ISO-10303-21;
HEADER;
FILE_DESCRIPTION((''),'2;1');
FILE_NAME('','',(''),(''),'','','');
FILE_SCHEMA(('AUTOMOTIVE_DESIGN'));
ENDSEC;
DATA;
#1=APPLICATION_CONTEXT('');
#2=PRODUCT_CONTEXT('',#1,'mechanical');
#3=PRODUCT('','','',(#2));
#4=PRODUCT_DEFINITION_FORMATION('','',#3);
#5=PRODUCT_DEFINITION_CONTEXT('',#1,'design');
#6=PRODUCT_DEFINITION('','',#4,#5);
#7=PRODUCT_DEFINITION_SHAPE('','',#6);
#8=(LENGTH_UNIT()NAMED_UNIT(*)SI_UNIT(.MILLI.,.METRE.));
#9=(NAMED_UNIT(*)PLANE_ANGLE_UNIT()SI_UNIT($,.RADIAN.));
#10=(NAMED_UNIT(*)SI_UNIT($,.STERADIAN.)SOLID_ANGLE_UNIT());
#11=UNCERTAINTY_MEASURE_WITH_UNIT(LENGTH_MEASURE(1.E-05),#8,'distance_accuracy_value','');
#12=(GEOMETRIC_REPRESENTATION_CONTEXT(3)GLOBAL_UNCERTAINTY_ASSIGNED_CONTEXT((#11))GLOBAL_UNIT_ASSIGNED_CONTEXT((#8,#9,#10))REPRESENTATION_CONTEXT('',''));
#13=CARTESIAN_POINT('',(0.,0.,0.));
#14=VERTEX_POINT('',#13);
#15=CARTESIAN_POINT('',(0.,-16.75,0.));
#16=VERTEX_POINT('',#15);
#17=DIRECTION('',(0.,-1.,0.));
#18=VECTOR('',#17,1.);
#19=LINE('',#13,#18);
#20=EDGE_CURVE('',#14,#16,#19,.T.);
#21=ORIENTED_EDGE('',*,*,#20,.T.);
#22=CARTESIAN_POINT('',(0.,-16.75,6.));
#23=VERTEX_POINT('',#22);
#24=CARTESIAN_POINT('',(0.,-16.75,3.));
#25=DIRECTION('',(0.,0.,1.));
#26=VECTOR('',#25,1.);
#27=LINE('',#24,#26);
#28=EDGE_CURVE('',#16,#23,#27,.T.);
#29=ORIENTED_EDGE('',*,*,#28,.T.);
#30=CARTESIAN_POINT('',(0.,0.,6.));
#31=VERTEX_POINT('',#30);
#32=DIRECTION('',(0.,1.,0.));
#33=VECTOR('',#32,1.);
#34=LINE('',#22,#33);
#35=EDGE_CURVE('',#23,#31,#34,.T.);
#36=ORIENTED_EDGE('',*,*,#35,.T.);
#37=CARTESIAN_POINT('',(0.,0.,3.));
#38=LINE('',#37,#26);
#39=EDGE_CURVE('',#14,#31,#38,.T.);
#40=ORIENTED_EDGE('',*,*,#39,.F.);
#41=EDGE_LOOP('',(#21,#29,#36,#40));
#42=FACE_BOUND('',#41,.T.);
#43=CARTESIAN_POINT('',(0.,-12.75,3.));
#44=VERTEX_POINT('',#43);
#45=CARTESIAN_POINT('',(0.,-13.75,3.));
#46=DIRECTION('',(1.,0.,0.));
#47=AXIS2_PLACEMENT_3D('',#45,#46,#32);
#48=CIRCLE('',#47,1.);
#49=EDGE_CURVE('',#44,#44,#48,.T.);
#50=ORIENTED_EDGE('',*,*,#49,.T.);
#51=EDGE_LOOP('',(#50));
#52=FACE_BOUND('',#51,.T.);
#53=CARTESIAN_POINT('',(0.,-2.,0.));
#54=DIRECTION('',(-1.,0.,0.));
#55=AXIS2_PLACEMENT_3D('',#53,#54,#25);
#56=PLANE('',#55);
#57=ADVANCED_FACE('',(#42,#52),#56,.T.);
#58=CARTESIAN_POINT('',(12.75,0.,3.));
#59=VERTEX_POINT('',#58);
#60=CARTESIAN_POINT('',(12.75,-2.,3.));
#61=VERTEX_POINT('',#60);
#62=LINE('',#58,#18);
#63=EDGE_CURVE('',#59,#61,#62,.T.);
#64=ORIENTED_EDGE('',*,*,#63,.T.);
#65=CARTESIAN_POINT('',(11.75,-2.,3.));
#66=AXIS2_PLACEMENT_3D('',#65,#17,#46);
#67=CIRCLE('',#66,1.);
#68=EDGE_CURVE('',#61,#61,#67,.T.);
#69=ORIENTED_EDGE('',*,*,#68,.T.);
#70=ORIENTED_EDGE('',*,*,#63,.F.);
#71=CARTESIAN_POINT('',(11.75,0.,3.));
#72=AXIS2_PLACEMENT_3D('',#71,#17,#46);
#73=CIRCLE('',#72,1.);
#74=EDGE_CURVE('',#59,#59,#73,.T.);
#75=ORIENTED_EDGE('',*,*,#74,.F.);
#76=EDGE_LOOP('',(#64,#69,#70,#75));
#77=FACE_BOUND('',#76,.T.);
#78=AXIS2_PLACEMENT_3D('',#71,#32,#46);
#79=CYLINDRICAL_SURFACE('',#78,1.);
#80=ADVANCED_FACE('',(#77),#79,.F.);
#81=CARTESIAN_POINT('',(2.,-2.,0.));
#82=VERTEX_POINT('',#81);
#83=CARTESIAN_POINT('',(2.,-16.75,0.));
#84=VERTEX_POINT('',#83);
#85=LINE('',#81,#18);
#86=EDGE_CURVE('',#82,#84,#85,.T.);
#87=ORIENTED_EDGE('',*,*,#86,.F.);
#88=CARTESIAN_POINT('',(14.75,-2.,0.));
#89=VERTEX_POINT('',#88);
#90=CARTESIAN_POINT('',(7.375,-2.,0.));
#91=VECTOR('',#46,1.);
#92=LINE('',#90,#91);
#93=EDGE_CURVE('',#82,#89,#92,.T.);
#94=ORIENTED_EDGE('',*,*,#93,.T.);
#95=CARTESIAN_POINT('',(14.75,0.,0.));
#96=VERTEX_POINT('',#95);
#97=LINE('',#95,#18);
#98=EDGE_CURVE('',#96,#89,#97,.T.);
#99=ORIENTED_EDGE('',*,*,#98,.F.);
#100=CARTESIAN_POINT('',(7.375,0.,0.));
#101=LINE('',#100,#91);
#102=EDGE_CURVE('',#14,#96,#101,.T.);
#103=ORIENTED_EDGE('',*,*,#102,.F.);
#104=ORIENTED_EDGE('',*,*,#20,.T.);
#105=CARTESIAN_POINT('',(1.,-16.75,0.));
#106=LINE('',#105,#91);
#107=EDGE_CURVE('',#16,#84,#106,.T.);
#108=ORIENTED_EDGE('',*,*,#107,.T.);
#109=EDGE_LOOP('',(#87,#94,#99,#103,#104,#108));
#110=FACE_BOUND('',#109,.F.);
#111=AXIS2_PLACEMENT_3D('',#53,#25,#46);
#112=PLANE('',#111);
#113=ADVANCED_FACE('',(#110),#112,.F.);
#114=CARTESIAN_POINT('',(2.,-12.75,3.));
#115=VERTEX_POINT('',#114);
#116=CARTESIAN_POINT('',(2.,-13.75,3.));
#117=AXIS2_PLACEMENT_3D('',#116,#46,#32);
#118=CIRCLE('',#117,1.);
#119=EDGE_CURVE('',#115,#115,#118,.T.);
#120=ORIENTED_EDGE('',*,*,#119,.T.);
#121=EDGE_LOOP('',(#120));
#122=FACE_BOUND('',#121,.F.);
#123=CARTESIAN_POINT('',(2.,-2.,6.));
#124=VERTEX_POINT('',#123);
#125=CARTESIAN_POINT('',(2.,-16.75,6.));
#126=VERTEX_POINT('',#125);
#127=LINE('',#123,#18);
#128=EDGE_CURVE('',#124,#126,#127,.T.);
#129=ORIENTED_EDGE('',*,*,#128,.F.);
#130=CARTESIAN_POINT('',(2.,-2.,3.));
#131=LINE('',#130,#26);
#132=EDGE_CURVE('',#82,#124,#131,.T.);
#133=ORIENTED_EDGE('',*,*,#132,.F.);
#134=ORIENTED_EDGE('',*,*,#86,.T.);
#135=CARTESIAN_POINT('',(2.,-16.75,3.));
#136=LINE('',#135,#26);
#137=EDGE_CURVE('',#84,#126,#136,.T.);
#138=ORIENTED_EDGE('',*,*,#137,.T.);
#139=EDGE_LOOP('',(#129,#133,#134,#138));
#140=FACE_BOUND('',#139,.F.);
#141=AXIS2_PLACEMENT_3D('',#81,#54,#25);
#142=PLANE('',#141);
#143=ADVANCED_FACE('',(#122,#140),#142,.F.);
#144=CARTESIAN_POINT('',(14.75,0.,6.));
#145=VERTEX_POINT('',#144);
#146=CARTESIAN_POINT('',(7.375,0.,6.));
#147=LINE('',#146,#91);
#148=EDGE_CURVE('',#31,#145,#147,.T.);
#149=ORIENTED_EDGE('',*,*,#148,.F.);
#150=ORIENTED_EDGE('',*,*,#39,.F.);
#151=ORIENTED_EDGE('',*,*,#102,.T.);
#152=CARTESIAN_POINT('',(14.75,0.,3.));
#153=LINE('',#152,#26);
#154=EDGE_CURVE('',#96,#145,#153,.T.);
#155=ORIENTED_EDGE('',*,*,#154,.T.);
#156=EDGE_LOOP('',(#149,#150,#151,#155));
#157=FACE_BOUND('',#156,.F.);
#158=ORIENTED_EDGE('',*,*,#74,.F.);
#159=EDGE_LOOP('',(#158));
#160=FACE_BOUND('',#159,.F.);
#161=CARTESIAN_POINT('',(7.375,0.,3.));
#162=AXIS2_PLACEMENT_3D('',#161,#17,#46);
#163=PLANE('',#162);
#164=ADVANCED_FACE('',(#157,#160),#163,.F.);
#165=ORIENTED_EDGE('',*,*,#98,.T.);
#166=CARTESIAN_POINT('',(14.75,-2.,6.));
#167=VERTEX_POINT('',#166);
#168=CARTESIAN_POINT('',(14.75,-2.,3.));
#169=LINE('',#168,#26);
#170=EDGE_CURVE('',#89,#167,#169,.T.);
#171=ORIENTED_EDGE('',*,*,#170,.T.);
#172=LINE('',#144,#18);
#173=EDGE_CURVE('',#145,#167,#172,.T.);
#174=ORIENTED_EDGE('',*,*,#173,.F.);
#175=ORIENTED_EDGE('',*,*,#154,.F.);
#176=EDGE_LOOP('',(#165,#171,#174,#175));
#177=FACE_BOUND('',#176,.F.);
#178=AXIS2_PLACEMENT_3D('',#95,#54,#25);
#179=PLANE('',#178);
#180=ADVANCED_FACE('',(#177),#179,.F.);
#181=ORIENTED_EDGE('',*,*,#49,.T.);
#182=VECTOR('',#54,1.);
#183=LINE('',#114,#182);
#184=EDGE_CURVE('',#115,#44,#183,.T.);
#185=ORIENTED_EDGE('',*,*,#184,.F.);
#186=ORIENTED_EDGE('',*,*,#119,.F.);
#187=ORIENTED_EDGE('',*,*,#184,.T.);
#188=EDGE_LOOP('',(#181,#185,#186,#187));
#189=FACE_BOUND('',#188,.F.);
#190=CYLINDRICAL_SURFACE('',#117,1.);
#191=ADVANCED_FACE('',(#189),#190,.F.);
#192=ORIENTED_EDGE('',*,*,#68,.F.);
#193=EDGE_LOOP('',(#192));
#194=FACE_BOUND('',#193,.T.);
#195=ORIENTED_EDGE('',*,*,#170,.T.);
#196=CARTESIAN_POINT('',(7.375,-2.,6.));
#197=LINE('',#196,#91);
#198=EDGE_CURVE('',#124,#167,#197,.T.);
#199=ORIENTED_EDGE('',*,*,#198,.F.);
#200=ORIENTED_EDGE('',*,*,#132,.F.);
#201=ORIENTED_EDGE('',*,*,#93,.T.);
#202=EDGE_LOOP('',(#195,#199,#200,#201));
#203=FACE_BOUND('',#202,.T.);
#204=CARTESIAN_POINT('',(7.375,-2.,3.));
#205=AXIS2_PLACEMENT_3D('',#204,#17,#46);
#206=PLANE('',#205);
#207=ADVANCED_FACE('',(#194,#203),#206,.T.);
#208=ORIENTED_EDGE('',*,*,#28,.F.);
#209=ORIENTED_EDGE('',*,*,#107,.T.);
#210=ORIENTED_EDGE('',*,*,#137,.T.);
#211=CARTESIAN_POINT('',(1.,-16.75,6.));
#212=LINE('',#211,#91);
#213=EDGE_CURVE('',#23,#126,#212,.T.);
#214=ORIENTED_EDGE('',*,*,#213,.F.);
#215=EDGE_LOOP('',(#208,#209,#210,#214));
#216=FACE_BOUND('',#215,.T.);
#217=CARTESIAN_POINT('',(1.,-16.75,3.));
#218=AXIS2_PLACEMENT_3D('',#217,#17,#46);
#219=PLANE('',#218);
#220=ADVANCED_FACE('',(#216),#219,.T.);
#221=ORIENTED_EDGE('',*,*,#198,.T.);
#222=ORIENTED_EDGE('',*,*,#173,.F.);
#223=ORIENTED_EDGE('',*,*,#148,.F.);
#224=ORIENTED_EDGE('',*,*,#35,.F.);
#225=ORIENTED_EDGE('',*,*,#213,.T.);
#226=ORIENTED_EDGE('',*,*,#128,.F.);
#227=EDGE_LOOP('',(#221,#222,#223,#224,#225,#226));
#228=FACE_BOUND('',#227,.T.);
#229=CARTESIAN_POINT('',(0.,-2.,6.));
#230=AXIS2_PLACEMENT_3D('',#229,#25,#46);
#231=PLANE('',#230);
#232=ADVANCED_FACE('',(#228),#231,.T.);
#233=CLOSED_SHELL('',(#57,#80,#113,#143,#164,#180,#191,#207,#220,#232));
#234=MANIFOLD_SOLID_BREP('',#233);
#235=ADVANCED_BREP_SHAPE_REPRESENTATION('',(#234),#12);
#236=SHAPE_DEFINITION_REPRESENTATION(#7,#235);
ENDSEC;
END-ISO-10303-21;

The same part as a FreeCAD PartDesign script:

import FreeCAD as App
import Part
import Sketcher

V = App.Vector

doc = App.newDocument("Part")
body = doc.addObject("PartDesign::Body", "Body")

# Sketch on XZ plane
sketch1 = body.newObject("Sketcher::SketchObject", "Sketch")
sketch1.AttachmentSupport = (doc.getObject("XZ_Plane"), [""])
sketch1.MapMode = "FlatFace"
sketch1.addGeometry([
    Part.LineSegment(V(0, 6, 0), V(0, 0, 0)),  # 0
    Part.LineSegment(V(0, 0, 0), V(14.8, 0, 0)),  # 1
    Part.LineSegment(V(14.8, 0, 0), V(14.8, 6, 0)),  # 2
    Part.LineSegment(V(14.8, 6, 0), V(0, 6, 0)),  # 3
    Part.Circle(V(11.8, 3, 0), V(0, 0, 1), 1),  # 4
], False)
sketch1.addConstraint([
    Sketcher.Constraint("Coincident", 0, 2, 1, 1),
    Sketcher.Constraint("Coincident", 1, 2, 2, 1),
    Sketcher.Constraint("Coincident", 2, 2, 3, 1),
    Sketcher.Constraint("Coincident", 3, 2, 0, 1),
    Sketcher.Constraint("Vertical", 0),
    Sketcher.Constraint("Horizontal", 1),
    Sketcher.Constraint("Vertical", 2),
    Sketcher.Constraint("Horizontal", 3),
    Sketcher.Constraint("Coincident", 0, 2, -1, 1),
    Sketcher.Constraint("Diameter", 4, 2.0),
    Sketcher.Constraint("DistanceY", 0, 2, 0, 1, 6.0),
    Sketcher.Constraint("DistanceY", -1, 1, 4, 3, 3.0),
    Sketcher.Constraint("DistanceX", 4, 3, 1, 2, 3.0),
    Sketcher.Constraint("DistanceX", 1, 1, 1, 2, 14.75),
])
pad1 = body.newObject("PartDesign::Pad", "Pad")
pad1.Profile = sketch1
pad1.Length = 2

# Sketch on XZ plane
sketch2 = body.newObject("Sketcher::SketchObject", "Sketch001")
sketch2.AttachmentSupport = (doc.getObject("XZ_Plane"), [""])
sketch2.MapMode = "FlatFace"
sketch2.AttachmentOffset = App.Placement(V(0, 0, 2), App.Rotation())
sketch2.addGeometry([
    Part.LineSegment(V(0, 6, 0), V(0, 0, 0)),
    Part.LineSegment(V(0, 0, 0), V(2, 0, 0)),
    Part.LineSegment(V(2, 0, 0), V(2, 6, 0)),
    Part.LineSegment(V(2, 6, 0), V(0, 6, 0)),
], False)
sketch2.addConstraint([
    Sketcher.Constraint("Coincident", 0, 2, 1, 1),
    Sketcher.Constraint("Coincident", 1, 2, 2, 1),
    Sketcher.Constraint("Coincident", 2, 2, 3, 1),
    Sketcher.Constraint("Coincident", 3, 2, 0, 1),
    Sketcher.Constraint("Vertical", 0),
    Sketcher.Constraint("Horizontal", 1),
    Sketcher.Constraint("Vertical", 2),
    Sketcher.Constraint("Horizontal", 3),
    Sketcher.Constraint("Coincident", 0, 2, -1, 1),
    Sketcher.Constraint("DistanceX", 1, 1, 1, 2, 2.0),
    Sketcher.Constraint("DistanceY", 0, 2, 0, 1, 6.0),
])
pad2 = body.newObject("PartDesign::Pad", "Pad001")
pad2.Profile = sketch2
pad2.Length = 14.75

# Sketch on YZ plane
sketch3 = body.newObject("Sketcher::SketchObject", "Sketch002")
sketch3.AttachmentSupport = (doc.getObject("YZ_Plane"), [""])
sketch3.MapMode = "FlatFace"
sketch3.AttachmentOffset = App.Placement(V(0, 0, 2), App.Rotation())
sketch3.addGeometry(Part.Circle(V(-13.8, 3, 0), V(0, 0, 1), 1), False)
sketch3.addConstraint([
    Sketcher.Constraint("Diameter", 0, 2.0),
    Sketcher.Constraint("DistanceY", -1, 1, 0, 3, 3.0),
    Sketcher.Constraint("DistanceX", 0, 3, -1, 1, 13.75),
])
pocket1 = body.newObject("PartDesign::Pocket", "Pocket")
pocket1.Profile = sketch3
pocket1.Length = 25

doc.recompute()
